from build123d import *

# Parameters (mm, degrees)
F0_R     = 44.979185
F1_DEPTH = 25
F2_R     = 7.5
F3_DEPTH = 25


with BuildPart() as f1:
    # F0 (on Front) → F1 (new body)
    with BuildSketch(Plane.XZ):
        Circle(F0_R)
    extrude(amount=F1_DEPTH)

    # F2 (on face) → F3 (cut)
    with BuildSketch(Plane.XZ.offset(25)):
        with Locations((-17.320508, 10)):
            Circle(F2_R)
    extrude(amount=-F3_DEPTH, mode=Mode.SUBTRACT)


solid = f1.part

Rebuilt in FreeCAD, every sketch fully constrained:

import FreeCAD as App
import Part
import Sketcher

doc = App.newDocument("Part")
body = doc.addObject("PartDesign::Body", "Body")

# Sketch on XZ plane
sketch1 = body.newObject("Sketcher::SketchObject", "Sketch")
sketch1.AttachmentSupport = (doc.getObject("XZ_Plane"), [""])
sketch1.MapMode = "FlatFace"
sketch1.addGeometry(Part.Circle(App.Vector(0, 0, 0), App.Vector(0, 0, 1), 44.979185), False)
sketch1.addConstraint([
    Sketcher.Constraint("Coincident", 0, 3, -1, 1),
    Sketcher.Constraint("Diameter", 0, 89.95837),
])
pad1 = body.newObject("PartDesign::Pad", "Pad")
pad1.Profile = sketch1
pad1.Length = 25

# Sketch on XZ plane
sketch2 = body.newObject("Sketcher::SketchObject", "Sketch001")
sketch2.AttachmentSupport = (doc.getObject("XZ_Plane"), [""])
sketch2.MapMode = "FlatFace"
sketch2.AttachmentOffset = App.Placement(App.Vector(0, 0, 25), App.Rotation())
sketch2.addGeometry(Part.Circle(App.Vector(-17.320508, 10, 0), App.Vector(0, 0, 1), 7.5), False)
sketch2.addConstraint([
    Sketcher.Constraint("Diameter", 0, 15.0),
    Sketcher.Constraint("DistanceY", -1, 1, 0, 3, 10.0),
    Sketcher.Constraint("DistanceX", 0, 3, -1, 1, 17.320508),
])
pocket1 = body.newObject("PartDesign::Pocket", "Pocket")
pocket1.Profile = sketch2
pocket1.Length = 25

doc.recompute()
